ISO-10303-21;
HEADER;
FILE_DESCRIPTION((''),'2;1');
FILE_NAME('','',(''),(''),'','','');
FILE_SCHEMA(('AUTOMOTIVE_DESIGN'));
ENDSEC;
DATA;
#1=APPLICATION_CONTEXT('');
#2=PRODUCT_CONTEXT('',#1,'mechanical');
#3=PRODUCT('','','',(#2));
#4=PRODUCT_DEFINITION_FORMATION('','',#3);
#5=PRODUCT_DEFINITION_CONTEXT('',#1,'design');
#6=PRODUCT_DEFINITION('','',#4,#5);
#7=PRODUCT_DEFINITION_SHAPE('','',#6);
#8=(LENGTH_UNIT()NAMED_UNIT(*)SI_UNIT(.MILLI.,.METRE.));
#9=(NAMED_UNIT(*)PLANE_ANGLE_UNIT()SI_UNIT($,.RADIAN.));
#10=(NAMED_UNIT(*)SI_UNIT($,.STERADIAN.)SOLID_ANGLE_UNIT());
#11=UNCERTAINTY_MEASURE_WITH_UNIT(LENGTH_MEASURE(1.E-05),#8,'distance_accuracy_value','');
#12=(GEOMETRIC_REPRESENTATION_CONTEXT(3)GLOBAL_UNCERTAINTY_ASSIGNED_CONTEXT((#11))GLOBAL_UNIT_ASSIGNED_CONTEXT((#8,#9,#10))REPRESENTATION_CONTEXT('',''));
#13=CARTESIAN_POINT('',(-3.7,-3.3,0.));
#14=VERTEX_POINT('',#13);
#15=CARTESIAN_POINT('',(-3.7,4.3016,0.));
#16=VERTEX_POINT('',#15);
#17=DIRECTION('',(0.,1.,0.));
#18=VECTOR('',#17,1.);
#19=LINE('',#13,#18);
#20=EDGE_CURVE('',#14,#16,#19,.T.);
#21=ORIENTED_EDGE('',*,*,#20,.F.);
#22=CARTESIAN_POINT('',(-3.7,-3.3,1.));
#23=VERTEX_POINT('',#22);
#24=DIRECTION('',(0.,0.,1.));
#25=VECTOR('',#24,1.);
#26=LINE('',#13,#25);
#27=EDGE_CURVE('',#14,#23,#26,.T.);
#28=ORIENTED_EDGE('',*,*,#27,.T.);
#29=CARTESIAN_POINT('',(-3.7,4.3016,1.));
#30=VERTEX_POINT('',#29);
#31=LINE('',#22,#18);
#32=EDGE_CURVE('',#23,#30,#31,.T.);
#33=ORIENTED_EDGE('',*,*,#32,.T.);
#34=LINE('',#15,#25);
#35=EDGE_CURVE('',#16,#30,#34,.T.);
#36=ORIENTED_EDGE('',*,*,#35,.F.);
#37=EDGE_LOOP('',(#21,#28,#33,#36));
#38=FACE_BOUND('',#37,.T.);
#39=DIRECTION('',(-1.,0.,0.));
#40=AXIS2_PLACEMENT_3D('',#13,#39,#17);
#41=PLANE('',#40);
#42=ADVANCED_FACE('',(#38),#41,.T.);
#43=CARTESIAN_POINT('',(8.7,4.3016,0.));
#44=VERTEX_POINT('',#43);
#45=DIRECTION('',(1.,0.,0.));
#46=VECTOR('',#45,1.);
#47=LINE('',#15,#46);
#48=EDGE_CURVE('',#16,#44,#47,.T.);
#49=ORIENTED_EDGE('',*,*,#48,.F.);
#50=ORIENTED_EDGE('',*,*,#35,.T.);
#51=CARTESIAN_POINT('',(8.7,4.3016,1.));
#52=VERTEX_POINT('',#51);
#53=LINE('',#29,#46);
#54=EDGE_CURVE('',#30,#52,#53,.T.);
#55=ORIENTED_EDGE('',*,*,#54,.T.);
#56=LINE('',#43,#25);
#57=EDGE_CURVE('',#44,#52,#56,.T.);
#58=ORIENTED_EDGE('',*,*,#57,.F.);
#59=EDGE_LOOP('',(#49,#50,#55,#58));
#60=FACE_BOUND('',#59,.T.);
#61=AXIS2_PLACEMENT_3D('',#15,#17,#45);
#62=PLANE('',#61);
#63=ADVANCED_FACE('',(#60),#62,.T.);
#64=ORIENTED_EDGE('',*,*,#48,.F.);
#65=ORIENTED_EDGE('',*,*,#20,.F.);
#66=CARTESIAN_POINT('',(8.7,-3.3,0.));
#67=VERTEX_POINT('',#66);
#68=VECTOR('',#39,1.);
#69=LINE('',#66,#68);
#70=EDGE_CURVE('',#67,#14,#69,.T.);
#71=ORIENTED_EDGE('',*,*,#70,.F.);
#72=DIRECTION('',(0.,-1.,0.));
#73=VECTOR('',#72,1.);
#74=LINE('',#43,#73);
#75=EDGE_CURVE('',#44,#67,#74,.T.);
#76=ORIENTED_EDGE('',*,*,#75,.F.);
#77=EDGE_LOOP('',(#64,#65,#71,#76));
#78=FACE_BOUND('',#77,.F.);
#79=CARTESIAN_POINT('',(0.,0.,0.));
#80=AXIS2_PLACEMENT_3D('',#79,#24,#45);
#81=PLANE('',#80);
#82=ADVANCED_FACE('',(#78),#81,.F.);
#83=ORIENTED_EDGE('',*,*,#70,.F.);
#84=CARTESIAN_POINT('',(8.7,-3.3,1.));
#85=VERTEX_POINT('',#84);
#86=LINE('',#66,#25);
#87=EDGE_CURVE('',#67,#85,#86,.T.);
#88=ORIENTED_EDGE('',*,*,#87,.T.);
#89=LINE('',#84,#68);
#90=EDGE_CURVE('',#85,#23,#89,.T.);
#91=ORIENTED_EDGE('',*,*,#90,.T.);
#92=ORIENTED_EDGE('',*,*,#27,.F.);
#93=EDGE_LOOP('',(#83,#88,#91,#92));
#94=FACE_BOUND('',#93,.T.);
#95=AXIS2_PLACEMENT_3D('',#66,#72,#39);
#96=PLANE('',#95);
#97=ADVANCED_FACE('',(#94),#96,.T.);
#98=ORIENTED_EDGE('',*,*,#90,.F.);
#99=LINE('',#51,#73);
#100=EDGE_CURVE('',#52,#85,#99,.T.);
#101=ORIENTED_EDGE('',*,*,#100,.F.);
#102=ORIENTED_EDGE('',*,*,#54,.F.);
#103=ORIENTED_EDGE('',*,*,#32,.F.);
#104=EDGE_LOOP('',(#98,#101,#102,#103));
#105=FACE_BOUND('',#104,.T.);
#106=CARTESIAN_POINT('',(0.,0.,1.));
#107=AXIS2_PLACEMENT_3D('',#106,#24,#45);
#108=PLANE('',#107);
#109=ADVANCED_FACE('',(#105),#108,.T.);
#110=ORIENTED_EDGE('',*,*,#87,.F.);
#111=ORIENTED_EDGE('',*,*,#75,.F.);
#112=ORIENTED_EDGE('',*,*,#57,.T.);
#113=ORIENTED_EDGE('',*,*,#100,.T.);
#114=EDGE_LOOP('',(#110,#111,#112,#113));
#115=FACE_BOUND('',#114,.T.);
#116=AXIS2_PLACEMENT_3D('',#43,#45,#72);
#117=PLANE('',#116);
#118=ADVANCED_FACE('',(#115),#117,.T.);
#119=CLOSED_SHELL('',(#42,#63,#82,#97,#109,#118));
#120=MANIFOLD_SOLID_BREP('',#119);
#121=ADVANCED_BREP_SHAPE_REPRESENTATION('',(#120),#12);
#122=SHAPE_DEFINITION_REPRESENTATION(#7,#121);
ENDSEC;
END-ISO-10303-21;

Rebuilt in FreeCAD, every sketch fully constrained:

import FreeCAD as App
import Part
import Sketcher

doc = App.newDocument("Part")
body = doc.addObject("PartDesign::Body", "Body")

sketch1 = doc.addObject("Sketcher::SketchObject", "Sketch")
body.addObject(sketch1)
sketch1.AttachmentSupport = (doc.XY_Plane, [""])
sketch1.MapMode = "FlatFace"
sketch1.addGeometry([
    Part.LineSegment(App.Vector(8.7, 4.3016, 0), App.Vector(-3.7, 4.3016, 0)),
    Part.LineSegment(App.Vector(-3.7, 4.3016, 0), App.Vector(-3.7, -3.3, 0)),
    Part.LineSegment(App.Vector(-3.7, -3.3, 0), App.Vector(8.7, -3.3, 0)),
    Part.LineSegment(App.Vector(8.7, -3.3, 0), App.Vector(8.7, 4.3016, 0)),
], False)
sketch1.addConstraint([
    Sketcher.Constraint("Coincident", 0, 2, 1, 1),
    Sketcher.Constraint("Coincident", 1, 2, 2, 1),
    Sketcher.Constraint("Coincident", 2, 2, 3, 1),
    Sketcher.Constraint("Coincident", 3, 2, 0, 1),
    Sketcher.Constraint("Horizontal", 0),
    Sketcher.Constraint("Vertical", 1),
    Sketcher.Constraint("Horizontal", 2),
    Sketcher.Constraint("Vertical", 3),
    Sketcher.Constraint("DistanceX", 0, 2, 0, 1, 12.4),
    Sketcher.Constraint("DistanceX", 0, 2, -1, 1, 3.7),
    Sketcher.Constraint("DistanceY", 1, 2, -1, 1, 3.3),
    Sketcher.Constraint("DistanceY", 1, 2, 1, 1, 7.6016),
])
pad1 = doc.addObject("PartDesign::Pad", "Pad")
body.addObject(pad1)
pad1.Profile = sketch1
pad1.Length = 1

doc.recompute()
